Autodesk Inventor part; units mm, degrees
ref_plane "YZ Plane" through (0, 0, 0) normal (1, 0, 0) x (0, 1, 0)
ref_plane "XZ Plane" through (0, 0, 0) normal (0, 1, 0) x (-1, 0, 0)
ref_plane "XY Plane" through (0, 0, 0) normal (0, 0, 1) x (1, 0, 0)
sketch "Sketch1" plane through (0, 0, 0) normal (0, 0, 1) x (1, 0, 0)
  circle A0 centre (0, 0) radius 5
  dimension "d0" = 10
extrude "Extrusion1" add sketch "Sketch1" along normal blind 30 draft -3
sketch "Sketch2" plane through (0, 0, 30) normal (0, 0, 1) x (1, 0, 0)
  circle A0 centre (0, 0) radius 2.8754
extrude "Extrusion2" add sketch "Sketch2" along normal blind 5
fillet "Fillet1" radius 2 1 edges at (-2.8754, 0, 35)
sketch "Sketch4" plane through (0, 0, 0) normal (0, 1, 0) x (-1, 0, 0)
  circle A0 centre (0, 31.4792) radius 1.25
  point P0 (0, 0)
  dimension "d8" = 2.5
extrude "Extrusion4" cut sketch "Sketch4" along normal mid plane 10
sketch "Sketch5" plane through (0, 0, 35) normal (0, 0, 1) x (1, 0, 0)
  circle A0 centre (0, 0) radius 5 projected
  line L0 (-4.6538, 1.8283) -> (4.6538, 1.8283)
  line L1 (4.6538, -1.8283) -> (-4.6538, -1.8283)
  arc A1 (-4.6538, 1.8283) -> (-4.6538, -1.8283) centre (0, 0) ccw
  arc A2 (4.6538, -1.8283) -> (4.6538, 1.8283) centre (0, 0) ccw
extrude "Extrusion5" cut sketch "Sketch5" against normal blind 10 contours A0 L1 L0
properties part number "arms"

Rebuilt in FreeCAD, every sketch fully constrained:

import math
import FreeCAD as App
import Part
import Sketcher
from FreeCAD import Vector


def edges_at(feature, points):
    """Names of the edges that pass closest to the given points."""
    edges = feature.Shape.Edges
    near = lambda p: min(range(len(edges)), key=lambda i: edges[i].distToShape(Part.Vertex(*p))[0])
    return sorted({f"Edge{near(p) + 1}" for p in points})

doc = App.newDocument("Part")
params = doc.addObject("Spreadsheet::Sheet", "Params")
for row, (alias, value) in enumerate([
    ("sketch1_diameter", "10 mm"),
    ("pad1_length", "30 mm"),
    ("pad1_taper", "-3 deg"),
    ("pad2_length", "5 mm"),
    ("fillet_radius", "2 mm"),
    ("sketch3_diameter", "2.5 mm"),
    ("pocket1_length", "10 mm"),
    ("sketch4_radius", "5 mm"),
    ("pocket2_length", "10 mm"),
], start=1):
    params.set(f"A{row}", alias)
    params.set(f"B{row}", "=" + value)
    params.setAlias(f"B{row}", alias)

body = doc.addObject("PartDesign::Body", "Body")

# Sketch on XY plane
sketch1 = body.newObject("Sketcher::SketchObject", "Sketch")
sketch1.AttachmentSupport = (doc.getObject("XY_Plane"), [""])
sketch1.MapMode = "FlatFace"
sketch1.addGeometry(Part.Circle(Vector(0, 0, 0), Vector(0, 0, 1), 5), False)
sketch1.addConstraint(Sketcher.Constraint("Coincident", 0, 3, -1, 1))
sketch1.addConstraint(Sketcher.Constraint("Diameter", 0, 10.0))
sketch1.setExpression("Constraints[1]", "Params.sketch1_diameter")
pad1 = body.newObject("PartDesign::Pad", "Pad")
pad1.Profile = sketch1
pad1.setExpression("Length", "Params.pad1_length")
pad1.setExpression("TaperAngle", "Params.pad1_taper")

# Sketch on XY plane
sketch2 = body.newObject("Sketcher::SketchObject", "Sketch001")
sketch2.AttachmentSupport = (doc.getObject("XY_Plane"), [""])
sketch2.MapMode = "FlatFace"
sketch2.AttachmentOffset = App.Placement(Vector(0, 0, 30), App.Rotation())
sketch2.addGeometry(Part.Circle(Vector(0, 0, 0), Vector(0, 0, 1), 2.9), False)
sketch2.addConstraint(Sketcher.Constraint("Coincident", 0, 3, -1, 1))
sketch2.addConstraint(Sketcher.Constraint("Diameter", 0, 5.7508))
pad2 = body.newObject("PartDesign::Pad", "Pad001")
pad2.Profile = sketch2
pad2.setExpression("Length", "Params.pad2_length")
doc.recompute()

fillet = body.newObject("PartDesign::Fillet", "Fillet")
fillet.Base = (pad2, edges_at(pad2, [(-2.875, 0, 35)]))
fillet.setExpression("Radius", "Params.fillet_radius")

# Sketch on XZ plane
sketch3 = body.newObject("Sketcher::SketchObject", "Sketch002")
sketch3.AttachmentSupport = (doc.getObject("XZ_Plane"), [""])
sketch3.MapMode = "FlatFace"
sketch3.addGeometry(Part.Circle(Vector(0, 31.5, 0), Vector(0, 0, 1), 1.2), False)
sketch3.addConstraint(Sketcher.Constraint("PointOnObject", 0, 3, -2))
sketch3.addConstraint(Sketcher.Constraint("Diameter", 0, 2.5))
sketch3.addConstraint(Sketcher.Constraint("DistanceY", -1, 1, 0, 3, 31.4792))
sketch3.setExpression("Constraints[1]", "Params.sketch3_diameter")
pocket1 = body.newObject("PartDesign::Pocket", "Pocket")
pocket1.Profile = sketch3
pocket1.setExpression("Length", "Params.pocket1_length")
pocket1.Midplane = True

# Sketch on XY plane
sketch4 = body.newObject("Sketcher::SketchObject", "Sketch003")
sketch4.AttachmentSupport = (doc.getObject("XY_Plane"), [""])
sketch4.MapMode = "FlatFace"
sketch4.AttachmentOffset = App.Placement(Vector(0, 0, 35), App.Rotation())
sketch4.addGeometry(Part.ArcOfCircle(Part.Circle(Vector(0, 0, 0), Vector(0, 0, 1), 5), math.radians(-21), math.radians(21)), False)
sketch4.addGeometry(Part.LineSegment(Vector(4.7, 1.8, 0), Vector(-4.7, 1.8, 0)), False)
sketch4.addGeometry(Part.ArcOfCircle(Part.Circle(Vector(0, 0, 0), Vector(0, 0, 1), 5), math.radians(159), math.radians(201)), False)
sketch4.addGeometry(Part.LineSegment(Vector(-4.7, -1.8, 0), Vector(4.7, -1.8, 0)), False)
sketch4.addConstraint(Sketcher.Constraint("Coincident", 0, 2, 1, 1))
sketch4.addConstraint(Sketcher.Constraint("Coincident", 1, 2, 2, 1))
sketch4.addConstraint(Sketcher.Constraint("Coincident", 2, 2, 3, 1))
sketch4.addConstraint(Sketcher.Constraint("Coincident", 3, 2, 0, 1))
sketch4.addConstraint(Sketcher.Constraint("Horizontal", 1))
sketch4.addConstraint(Sketcher.Constraint("Horizontal", 3))
sketch4.addConstraint(Sketcher.Constraint("Coincident", 0, 3, -1, 1))
sketch4.addConstraint(Sketcher.Constraint("Coincident", 2, 3, -1, 1))
sketch4.addConstraint(Sketcher.Constraint("Equal", 0, 2))
sketch4.addConstraint(Sketcher.Constraint("Vertical", 1, 2, 2, 2))
sketch4.addConstraint(Sketcher.Constraint("Radius", 0, 5.0))
sketch4.addConstraint(Sketcher.Constraint("DistanceX", 1, 2, 1, 1, 9.3076))
sketch4.setExpression("Constraints[10]", "Params.sketch4_radius")
pocket2 = body.newObject("PartDesign::Pocket", "Pocket001")
pocket2.Profile = sketch4
pocket2.setExpression("Length", "Params.pocket2_length")

doc.recompute()
